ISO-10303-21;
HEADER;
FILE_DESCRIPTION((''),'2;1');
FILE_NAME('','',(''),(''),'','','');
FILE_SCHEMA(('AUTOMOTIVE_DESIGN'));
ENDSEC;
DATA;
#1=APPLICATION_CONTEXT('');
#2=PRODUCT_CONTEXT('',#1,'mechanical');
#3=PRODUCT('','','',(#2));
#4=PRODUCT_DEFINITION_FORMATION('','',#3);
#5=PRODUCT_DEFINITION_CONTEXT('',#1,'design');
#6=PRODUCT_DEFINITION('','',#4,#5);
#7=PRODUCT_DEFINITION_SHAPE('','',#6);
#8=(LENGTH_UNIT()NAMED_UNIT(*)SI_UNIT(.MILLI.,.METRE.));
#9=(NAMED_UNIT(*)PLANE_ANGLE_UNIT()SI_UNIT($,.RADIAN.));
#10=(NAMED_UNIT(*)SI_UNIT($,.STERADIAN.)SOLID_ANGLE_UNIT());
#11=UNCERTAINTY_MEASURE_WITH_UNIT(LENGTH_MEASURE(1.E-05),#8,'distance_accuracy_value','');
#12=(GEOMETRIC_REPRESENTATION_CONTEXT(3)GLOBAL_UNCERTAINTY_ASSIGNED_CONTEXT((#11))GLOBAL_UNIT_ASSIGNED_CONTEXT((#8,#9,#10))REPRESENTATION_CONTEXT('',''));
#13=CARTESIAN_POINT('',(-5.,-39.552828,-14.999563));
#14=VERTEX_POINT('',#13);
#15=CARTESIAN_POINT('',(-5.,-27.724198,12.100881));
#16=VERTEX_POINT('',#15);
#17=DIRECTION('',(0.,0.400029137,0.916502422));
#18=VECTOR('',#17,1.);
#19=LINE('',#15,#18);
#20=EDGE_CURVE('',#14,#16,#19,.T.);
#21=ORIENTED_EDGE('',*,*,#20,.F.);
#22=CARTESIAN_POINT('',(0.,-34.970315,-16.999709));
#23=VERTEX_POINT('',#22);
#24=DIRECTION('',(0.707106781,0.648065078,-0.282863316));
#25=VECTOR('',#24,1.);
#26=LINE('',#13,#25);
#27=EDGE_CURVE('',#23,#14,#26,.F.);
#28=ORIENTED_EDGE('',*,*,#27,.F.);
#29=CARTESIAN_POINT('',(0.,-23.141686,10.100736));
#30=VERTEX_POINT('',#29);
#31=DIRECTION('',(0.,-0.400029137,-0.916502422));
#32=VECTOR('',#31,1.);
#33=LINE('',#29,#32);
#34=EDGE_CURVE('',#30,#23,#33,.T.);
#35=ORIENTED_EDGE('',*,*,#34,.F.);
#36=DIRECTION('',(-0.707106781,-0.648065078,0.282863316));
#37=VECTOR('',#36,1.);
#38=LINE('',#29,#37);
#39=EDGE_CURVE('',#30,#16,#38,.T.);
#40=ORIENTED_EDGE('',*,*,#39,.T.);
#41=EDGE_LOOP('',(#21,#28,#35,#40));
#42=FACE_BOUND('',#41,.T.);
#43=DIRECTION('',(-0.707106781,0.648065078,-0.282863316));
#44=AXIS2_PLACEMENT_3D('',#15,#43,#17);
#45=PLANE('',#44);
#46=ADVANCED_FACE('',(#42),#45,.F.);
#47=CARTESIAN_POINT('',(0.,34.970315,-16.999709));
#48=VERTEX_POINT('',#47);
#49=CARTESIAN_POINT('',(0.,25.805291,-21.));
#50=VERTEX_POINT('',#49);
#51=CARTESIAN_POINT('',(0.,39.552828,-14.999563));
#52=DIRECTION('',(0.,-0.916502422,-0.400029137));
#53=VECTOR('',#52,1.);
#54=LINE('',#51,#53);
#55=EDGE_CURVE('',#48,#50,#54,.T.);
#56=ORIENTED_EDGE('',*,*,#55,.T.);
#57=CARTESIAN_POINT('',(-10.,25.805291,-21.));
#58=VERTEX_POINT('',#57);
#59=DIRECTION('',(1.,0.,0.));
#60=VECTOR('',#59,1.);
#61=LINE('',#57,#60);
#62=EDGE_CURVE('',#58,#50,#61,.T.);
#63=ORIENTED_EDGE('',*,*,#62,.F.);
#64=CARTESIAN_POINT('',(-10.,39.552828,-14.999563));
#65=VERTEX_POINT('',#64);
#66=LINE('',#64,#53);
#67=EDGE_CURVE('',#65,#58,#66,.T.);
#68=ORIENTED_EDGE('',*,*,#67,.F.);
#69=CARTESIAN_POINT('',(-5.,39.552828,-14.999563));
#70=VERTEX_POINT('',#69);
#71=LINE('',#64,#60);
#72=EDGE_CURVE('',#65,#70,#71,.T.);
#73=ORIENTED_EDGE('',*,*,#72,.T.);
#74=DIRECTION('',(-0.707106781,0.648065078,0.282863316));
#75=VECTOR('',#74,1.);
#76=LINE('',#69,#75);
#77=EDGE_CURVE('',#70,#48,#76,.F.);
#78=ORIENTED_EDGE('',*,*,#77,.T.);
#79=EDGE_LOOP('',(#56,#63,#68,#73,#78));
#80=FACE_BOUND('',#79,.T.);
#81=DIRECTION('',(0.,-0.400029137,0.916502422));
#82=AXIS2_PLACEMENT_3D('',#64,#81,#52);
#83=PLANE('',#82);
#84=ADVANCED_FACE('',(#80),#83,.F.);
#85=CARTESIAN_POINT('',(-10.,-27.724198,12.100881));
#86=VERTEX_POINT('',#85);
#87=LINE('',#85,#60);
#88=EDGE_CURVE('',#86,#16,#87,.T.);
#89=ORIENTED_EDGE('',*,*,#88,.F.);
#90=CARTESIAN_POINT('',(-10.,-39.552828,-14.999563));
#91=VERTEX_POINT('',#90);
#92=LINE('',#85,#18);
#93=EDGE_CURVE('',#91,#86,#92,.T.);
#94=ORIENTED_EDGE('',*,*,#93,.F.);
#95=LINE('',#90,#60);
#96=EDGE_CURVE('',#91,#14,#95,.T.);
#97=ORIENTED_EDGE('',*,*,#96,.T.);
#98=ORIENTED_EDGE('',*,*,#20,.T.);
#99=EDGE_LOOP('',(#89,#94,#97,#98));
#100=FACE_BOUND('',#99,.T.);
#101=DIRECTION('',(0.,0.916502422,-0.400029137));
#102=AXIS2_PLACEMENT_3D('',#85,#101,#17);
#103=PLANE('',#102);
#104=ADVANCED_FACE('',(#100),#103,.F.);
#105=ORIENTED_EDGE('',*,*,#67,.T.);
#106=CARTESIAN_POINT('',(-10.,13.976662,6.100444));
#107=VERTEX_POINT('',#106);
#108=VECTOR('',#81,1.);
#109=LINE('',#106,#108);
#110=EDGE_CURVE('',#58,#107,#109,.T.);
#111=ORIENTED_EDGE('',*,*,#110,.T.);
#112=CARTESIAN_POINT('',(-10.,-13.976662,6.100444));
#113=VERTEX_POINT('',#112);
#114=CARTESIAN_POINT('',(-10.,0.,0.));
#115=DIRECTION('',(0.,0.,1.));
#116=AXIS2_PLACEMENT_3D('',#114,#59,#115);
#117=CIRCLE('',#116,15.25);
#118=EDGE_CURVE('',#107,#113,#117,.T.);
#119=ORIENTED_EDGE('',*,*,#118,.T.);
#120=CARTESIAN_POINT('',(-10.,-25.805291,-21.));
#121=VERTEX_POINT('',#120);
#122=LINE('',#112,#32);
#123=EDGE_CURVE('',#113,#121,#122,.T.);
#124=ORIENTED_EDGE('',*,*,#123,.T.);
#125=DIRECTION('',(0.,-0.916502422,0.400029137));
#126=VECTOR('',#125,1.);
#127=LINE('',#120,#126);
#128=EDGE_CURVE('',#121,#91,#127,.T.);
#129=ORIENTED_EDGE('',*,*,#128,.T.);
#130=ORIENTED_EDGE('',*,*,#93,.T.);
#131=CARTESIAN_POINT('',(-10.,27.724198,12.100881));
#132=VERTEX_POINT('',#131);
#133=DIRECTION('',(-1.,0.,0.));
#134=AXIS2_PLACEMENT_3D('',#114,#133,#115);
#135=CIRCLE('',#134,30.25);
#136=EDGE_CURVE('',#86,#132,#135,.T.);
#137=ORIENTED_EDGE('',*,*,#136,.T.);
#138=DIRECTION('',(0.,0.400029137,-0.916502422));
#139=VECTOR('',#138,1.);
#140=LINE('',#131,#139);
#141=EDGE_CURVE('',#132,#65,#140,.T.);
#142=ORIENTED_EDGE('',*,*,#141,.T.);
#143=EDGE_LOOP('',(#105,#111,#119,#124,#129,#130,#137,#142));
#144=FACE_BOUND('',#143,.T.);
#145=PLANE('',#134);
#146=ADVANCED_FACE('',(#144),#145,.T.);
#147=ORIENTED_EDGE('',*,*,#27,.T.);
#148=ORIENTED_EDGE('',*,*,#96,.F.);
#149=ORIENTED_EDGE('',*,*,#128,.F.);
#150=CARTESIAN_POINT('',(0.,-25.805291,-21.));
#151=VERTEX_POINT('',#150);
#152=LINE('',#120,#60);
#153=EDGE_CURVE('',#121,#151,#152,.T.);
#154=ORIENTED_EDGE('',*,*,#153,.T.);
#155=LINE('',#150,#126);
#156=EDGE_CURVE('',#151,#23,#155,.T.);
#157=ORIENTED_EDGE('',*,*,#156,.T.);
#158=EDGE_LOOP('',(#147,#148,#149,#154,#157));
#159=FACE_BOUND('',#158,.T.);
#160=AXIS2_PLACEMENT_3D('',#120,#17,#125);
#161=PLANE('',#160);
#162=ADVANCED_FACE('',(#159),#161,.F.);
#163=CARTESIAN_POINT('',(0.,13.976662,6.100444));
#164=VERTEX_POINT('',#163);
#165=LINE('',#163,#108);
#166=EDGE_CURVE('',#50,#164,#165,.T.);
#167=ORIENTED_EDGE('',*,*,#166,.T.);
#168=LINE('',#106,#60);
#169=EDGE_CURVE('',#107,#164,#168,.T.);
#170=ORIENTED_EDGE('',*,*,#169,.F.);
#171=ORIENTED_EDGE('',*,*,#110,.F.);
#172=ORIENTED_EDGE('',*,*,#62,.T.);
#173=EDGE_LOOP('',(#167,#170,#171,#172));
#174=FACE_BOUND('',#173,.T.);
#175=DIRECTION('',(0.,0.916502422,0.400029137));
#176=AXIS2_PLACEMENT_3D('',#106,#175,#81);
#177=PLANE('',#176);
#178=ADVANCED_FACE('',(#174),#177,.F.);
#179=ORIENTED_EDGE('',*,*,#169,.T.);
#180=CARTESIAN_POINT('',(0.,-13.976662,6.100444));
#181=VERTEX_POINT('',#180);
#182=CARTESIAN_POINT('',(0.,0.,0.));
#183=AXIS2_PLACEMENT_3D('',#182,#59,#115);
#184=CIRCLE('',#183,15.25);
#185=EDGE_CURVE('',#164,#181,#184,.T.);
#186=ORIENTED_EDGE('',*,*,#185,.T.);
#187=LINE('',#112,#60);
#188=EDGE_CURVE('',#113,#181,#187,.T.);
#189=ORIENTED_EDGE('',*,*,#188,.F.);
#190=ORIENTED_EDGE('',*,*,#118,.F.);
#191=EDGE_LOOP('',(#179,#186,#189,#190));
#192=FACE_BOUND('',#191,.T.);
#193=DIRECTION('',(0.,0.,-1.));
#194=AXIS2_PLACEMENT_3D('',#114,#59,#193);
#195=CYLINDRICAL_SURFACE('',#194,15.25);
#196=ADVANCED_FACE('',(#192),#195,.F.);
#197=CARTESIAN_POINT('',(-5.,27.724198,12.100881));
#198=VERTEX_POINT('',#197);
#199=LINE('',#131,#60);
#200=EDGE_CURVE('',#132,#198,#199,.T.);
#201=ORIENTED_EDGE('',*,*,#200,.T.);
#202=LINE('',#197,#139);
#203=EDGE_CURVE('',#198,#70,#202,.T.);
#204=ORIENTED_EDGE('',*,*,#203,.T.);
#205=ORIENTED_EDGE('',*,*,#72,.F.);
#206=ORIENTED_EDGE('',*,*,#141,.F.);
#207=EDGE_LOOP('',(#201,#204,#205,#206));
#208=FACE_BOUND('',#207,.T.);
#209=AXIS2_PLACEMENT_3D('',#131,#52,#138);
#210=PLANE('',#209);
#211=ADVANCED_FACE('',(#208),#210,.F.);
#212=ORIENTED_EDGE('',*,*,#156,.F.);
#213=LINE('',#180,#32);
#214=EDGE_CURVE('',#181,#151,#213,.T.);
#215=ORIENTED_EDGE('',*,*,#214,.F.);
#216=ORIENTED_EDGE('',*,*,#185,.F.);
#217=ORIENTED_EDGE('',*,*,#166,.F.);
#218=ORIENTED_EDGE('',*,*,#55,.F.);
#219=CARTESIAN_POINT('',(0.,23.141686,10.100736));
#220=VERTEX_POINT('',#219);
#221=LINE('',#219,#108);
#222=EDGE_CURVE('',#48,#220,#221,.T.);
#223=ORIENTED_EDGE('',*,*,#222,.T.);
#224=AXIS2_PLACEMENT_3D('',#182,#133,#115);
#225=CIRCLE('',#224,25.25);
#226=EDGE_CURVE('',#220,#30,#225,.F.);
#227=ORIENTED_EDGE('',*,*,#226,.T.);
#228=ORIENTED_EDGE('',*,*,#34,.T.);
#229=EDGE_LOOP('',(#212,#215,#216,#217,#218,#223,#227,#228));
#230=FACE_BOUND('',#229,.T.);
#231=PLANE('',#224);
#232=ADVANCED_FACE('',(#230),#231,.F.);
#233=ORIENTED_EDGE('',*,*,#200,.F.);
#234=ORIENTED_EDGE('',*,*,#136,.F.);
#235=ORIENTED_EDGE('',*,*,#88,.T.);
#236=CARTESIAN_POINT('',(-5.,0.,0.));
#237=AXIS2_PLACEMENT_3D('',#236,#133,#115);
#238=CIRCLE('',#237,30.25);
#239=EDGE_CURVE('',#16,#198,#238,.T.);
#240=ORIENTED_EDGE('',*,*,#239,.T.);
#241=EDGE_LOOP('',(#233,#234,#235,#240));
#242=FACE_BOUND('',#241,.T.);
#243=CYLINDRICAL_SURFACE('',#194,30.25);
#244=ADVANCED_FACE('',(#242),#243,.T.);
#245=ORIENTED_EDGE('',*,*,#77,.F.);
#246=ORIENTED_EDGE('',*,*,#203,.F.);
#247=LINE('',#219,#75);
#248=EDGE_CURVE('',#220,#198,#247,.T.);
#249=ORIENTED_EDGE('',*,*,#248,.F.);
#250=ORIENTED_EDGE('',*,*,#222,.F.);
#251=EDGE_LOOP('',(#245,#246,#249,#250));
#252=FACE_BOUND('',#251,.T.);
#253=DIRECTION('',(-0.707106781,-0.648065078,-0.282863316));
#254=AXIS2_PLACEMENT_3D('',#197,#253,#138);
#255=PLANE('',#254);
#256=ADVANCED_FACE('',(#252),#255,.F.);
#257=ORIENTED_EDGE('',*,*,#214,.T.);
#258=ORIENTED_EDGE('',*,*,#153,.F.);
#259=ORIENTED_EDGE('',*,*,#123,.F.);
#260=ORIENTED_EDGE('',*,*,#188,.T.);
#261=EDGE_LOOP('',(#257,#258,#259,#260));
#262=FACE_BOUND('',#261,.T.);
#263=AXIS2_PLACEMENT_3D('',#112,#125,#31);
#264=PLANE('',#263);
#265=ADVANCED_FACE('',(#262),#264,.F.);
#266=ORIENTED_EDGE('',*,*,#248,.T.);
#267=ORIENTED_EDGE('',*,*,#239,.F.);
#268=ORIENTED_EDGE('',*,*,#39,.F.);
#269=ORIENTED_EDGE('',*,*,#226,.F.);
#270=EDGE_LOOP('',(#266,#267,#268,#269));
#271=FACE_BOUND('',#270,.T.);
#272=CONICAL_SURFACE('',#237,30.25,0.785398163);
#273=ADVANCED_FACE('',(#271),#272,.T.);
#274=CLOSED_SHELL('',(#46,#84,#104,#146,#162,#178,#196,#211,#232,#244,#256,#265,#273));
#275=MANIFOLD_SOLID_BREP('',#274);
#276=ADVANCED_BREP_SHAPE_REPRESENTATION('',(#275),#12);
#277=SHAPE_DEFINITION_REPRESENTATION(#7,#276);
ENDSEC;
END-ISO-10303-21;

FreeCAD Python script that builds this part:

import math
import FreeCAD as App
import Part
import Sketcher
Q = App.Units.Quantity


def edges_at(feature, points):
    """Names of the edges that pass closest to the given points."""
    edges = feature.Shape.Edges
    near = lambda p: min(range(len(edges)), key=lambda i: edges[i].distToShape(Part.Vertex(*p))[0])
    return sorted({f"Edge{near(p) + 1}" for p in points})

doc = App.newDocument("Part")
body = doc.addObject("PartDesign::Body", "Body")

# Sketch on YZ plane
sketch1 = body.newObject("Sketcher::SketchObject", "Sketch")
sketch1.AttachmentSupport = (doc.getObject("YZ_Plane"), [""])
sketch1.MapMode = "FlatFace"
sketch1.addGeometry([
    Part.LineSegment(App.Vector(26, -21, 0), App.Vector(14, 6, 0)),  # 0
    Part.ArcOfCircle(Part.Circle(App.Vector(0, 0, 0), App.Vector(0, 0, 1), 15), math.radians(24), math.radians(156)),  # 1
    Part.LineSegment(App.Vector(-14, 6, 0), App.Vector(-26, -21, 0)),  # 2
    Part.LineSegment(App.Vector(-26, -21, 0), App.Vector(-40, -15, 0)),  # 3
    Part.LineSegment(App.Vector(-40, -15, 0), App.Vector(-28, 12, 0)),  # 4
    Part.ArcOfCircle(Part.Circle(App.Vector(0, 0, 0), App.Vector(0, 0, 1), 30), math.radians(24), math.radians(156)),  # 5
    Part.LineSegment(App.Vector(28, 12, 0), App.Vector(40, -15, 0)),  # 6
    Part.LineSegment(App.Vector(40, -15, 0), App.Vector(26, -21, 0)),  # 7
], False)
sketch1.addConstraint([
    Sketcher.Constraint("Tangent", 0, 2, 1, 1),
    Sketcher.Constraint("Tangent", 1, 2, 2, 1),
    Sketcher.Constraint("Coincident", 2, 2, 3, 1),
    Sketcher.Constraint("Coincident", 3, 2, 4, 1),
    Sketcher.Constraint("Tangent", 4, 2, 5, 2),
    Sketcher.Constraint("Tangent", 5, 1, 6, 1),
    Sketcher.Constraint("Coincident", 6, 2, 7, 1),
    Sketcher.Constraint("Coincident", 7, 2, 0, 1),
    Sketcher.Constraint("Coincident", 1, 3, -1, 1),
    Sketcher.Constraint("Coincident", 5, 3, -1, 1),
    Sketcher.Constraint("Symmetric", 3, 2, 6, 2, -2),
    Sketcher.Constraint("Symmetric", 2, 2, 7, 2, -2),
    Sketcher.Constraint("Perpendicular", 2, 3),
    Sketcher.Constraint("Perpendicular", 3, 4),
    Sketcher.Constraint("Radius", 1, 15.25),
    Sketcher.Constraint("Radius", 5, 30.25),
    Sketcher.Constraint("DistanceY", 2, 2, -1, 1, 21.0),
    Sketcher.Constraint("Angle", 0, Q("113.58 deg")),
])
pad1 = body.newObject("PartDesign::Pad", "Pad")
pad1.Profile = sketch1
pad1.Length = 10
pad1.Reversed = True
doc.recompute()

chamfer = body.newObject("PartDesign::Chamfer", "Chamfer")
chamfer.Base = (pad1, edges_at(pad1, [(0, -33.639, -1.449), (0, 33.639, -1.449), (0, 0, 30.25)]))
chamfer.Size = 5

doc.recompute()
